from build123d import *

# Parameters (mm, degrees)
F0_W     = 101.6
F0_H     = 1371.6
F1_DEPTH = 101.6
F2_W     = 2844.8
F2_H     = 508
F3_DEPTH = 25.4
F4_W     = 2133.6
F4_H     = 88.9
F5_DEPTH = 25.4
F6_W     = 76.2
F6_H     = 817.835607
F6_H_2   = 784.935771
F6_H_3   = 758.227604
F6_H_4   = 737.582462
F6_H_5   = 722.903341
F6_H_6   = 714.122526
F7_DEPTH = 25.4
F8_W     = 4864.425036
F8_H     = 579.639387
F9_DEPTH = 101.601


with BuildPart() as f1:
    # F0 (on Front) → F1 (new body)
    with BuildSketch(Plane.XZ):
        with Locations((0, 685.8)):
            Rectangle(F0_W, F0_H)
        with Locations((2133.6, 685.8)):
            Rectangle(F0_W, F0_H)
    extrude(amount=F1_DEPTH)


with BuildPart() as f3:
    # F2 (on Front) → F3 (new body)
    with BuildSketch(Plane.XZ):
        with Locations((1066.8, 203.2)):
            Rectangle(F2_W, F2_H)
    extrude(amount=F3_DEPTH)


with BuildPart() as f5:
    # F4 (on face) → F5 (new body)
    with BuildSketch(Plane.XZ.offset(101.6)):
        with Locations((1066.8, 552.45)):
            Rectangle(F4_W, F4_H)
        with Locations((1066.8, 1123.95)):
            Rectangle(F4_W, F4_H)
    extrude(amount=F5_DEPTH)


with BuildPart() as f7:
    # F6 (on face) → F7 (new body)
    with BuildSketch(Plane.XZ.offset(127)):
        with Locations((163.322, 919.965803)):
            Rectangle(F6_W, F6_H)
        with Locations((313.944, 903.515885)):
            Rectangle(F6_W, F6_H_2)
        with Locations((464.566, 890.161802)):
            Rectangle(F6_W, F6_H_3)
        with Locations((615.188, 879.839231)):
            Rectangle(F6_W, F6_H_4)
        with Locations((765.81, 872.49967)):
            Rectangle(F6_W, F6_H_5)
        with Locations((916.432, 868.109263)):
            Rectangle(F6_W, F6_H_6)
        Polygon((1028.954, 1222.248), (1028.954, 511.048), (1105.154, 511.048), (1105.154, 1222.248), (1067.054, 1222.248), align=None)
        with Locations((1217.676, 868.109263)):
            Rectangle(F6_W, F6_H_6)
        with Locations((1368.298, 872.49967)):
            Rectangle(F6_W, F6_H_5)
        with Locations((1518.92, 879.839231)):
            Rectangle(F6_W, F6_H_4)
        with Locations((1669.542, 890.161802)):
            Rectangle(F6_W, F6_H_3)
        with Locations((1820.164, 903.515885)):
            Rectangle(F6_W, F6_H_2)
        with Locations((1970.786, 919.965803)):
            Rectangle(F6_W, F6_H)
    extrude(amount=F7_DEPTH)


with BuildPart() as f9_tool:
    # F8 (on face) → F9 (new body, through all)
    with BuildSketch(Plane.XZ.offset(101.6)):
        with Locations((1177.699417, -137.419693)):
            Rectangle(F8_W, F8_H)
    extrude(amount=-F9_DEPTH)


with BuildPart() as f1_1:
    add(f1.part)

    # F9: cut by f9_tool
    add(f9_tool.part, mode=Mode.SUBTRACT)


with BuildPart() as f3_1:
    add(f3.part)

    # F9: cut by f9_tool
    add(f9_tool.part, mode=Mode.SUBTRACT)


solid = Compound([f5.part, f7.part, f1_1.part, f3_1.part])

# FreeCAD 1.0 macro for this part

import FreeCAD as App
import Part
import Sketcher

V = App.Vector
Q = App.Units.Quantity

doc = App.newDocument("Part")
body = doc.addObject("PartDesign::Body", "Body")
body.AllowCompound = True

# Sketch on XZ plane
sketch1 = body.newObject("Sketcher::SketchObject", "Sketch")
sketch1.AttachmentSupport = (doc.getObject("XZ_Plane"), [""])
sketch1.MapMode = "FlatFace"
sketch1.addGeometry([
    Part.LineSegment(V(-51, 1372, 0), V(-51, 0, 0)),  # 0
    Part.LineSegment(V(-51, 0, 0), V(51, 0, 0)),  # 1
    Part.LineSegment(V(51, 0, 0), V(51, 1372, 0)),  # 2
    Part.LineSegment(V(51, 1372, 0), V(-51, 1372, 0)),  # 3
    Part.LineSegment(V(2083, 1372, 0), V(2083, 0, 0)),  # 4
    Part.LineSegment(V(2083, 0, 0), V(2184, 0, 0)),  # 5
    Part.LineSegment(V(2184, 0, 0), V(2184, 1372, 0)),  # 6
    Part.LineSegment(V(2184, 1372, 0), V(2083, 1372, 0)),  # 7
], False)
sketch1.addConstraint([
    Sketcher.Constraint("Coincident", 0, 2, 1, 1),
    Sketcher.Constraint("Coincident", 1, 2, 2, 1),
    Sketcher.Constraint("Coincident", 2, 2, 3, 1),
    Sketcher.Constraint("Coincident", 3, 2, 0, 1),
    Sketcher.Constraint("Coincident", 4, 2, 5, 1),
    Sketcher.Constraint("Coincident", 5, 2, 6, 1),
    Sketcher.Constraint("Coincident", 6, 2, 7, 1),
    Sketcher.Constraint("Coincident", 7, 2, 4, 1),
    Sketcher.Constraint("Vertical", 0),
    Sketcher.Constraint("Horizontal", 1),
    Sketcher.Constraint("Vertical", 2),
    Sketcher.Constraint("Horizontal", 3),
    Sketcher.Constraint("Vertical", 4),
    Sketcher.Constraint("Horizontal", 5),
    Sketcher.Constraint("Vertical", 6),
    Sketcher.Constraint("Horizontal", 7),
    Sketcher.Constraint("Symmetric", 0, 2, 1, 2, -1, 1),
    Sketcher.Constraint("PointOnObject", 4, 2, -1),
    Sketcher.Constraint("Horizontal", 3, 2, 6, 2),
    Sketcher.Constraint("Equal", 3, 5),
    Sketcher.Constraint("DistanceX", 1, 1, 1, 2, Q("4 in")),
    Sketcher.Constraint("DistanceY", 0, 2, 0, 1, Q("54 in")),
    Sketcher.Constraint("DistanceX", -1, 1, 4, 2, Q("82 in")),
])
pad1 = body.newObject("PartDesign::Pad", "Pad")
pad1.Profile = sketch1
pad1.Length = Q("4 in")
body2 = doc.addObject("PartDesign::Body", "Body001")

# Sketch on XZ plane
sketch2 = body2.newObject("Sketcher::SketchObject", "Sketch001")
sketch2.AttachmentSupport = (doc.getObject("XZ_Plane001"), [""])
sketch2.MapMode = "FlatFace"
sketch2.addGeometry([
    Part.LineSegment(V(-356, 457, 0), V(-356, -51, 0)),
    Part.LineSegment(V(-356, -51, 0), V(2489, -51, 0)),
    Part.LineSegment(V(2489, -51, 0), V(2489, 457, 0)),
    Part.LineSegment(V(2489, 457, 0), V(-356, 457, 0)),
], False)
sketch2.addConstraint([
    Sketcher.Constraint("Coincident", 0, 2, 1, 1),
    Sketcher.Constraint("Coincident", 1, 2, 2, 1),
    Sketcher.Constraint("Coincident", 2, 2, 3, 1),
    Sketcher.Constraint("Coincident", 3, 2, 0, 1),
    Sketcher.Constraint("Vertical", 0),
    Sketcher.Constraint("Horizontal", 1),
    Sketcher.Constraint("Vertical", 2),
    Sketcher.Constraint("Horizontal", 3),
    Sketcher.Constraint("DistanceX", 1, 1, 1, 2, Q("112 in")),
    Sketcher.Constraint("DistanceY", 0, 2, 0, 1, Q("20 in")),
    Sketcher.Constraint("DistanceX", 0, 2, -1, 1, Q("14 in")),
    Sketcher.Constraint("DistanceY", 0, 2, -1, 1, Q("2 in")),
])
pad2 = body2.newObject("PartDesign::Pad", "Pad001")
pad2.Profile = sketch2
pad2.Length = Q("1 in")
body3 = doc.addObject("PartDesign::Body", "Body002")
body3.AllowCompound = True

# Sketch on XZ plane
sketch3 = body3.newObject("Sketcher::SketchObject", "Sketch002")
sketch3.AttachmentSupport = (doc.getObject("XZ_Plane002"), [""])
sketch3.MapMode = "FlatFace"
sketch3.AttachmentOffset = App.Placement(V(0, 0, 4 * 25.4), App.Rotation())
sketch3.addGeometry([
    Part.LineSegment(V(0, 597, 0), V(0, 508, 0)),  # 0
    Part.LineSegment(V(0, 508, 0), V(2134, 508, 0)),  # 1
    Part.LineSegment(V(2134, 508, 0), V(2134, 597, 0)),  # 2
    Part.LineSegment(V(2134, 597, 0), V(0, 597, 0)),  # 3
    Part.LineSegment(V(0, 1168, 0), V(0, 1080, 0)),  # 4
    Part.LineSegment(V(0, 1080, 0), V(2134, 1080, 0)),  # 5
    Part.LineSegment(V(2134, 1080, 0), V(2134, 1168, 0)),  # 6
    Part.LineSegment(V(2134, 1168, 0), V(0, 1168, 0)),  # 7
], False)
sketch3.addConstraint([
    Sketcher.Constraint("Coincident", 0, 2, 1, 1),
    Sketcher.Constraint("Coincident", 1, 2, 2, 1),
    Sketcher.Constraint("Coincident", 2, 2, 3, 1),
    Sketcher.Constraint("Coincident", 3, 2, 0, 1),
    Sketcher.Constraint("Coincident", 4, 2, 5, 1),
    Sketcher.Constraint("Coincident", 5, 2, 6, 1),
    Sketcher.Constraint("Coincident", 6, 2, 7, 1),
    Sketcher.Constraint("Coincident", 7, 2, 4, 1),
    Sketcher.Constraint("Vertical", 0),
    Sketcher.Constraint("Horizontal", 1),
    Sketcher.Constraint("Vertical", 2),
    Sketcher.Constraint("Horizontal", 3),
    Sketcher.Constraint("Vertical", 4),
    Sketcher.Constraint("Horizontal", 5),
    Sketcher.Constraint("Vertical", 6),
    Sketcher.Constraint("Horizontal", 7),
    Sketcher.Constraint("PointOnObject", 0, 2, -2),
    Sketcher.Constraint("PointOnObject", 4, 2, -2),
    Sketcher.Constraint("Vertical", 2, 2, 5, 2),
    Sketcher.Constraint("Equal", 2, 4),
    Sketcher.Constraint("DistanceX", 1, 1, 1, 2, Q("84 in")),
    Sketcher.Constraint("DistanceY", 0, 2, 0, 1, Q("3.5 in")),
    Sketcher.Constraint("DistanceY", -1, 1, 0, 2, Q("20 in")),
    Sketcher.Constraint("DistanceY", -1, 1, 6, 2, Q("46 in")),
])
pad3 = body3.newObject("PartDesign::Pad", "Pad002")
pad3.Profile = sketch3
pad3.Length = Q("1 in")
body4 = doc.addObject("PartDesign::Body", "Body003")
body4.AllowCompound = True

# Sketch on XZ plane
sketch4 = body4.newObject("Sketcher::SketchObject", "Sketch003")
sketch4.AttachmentSupport = (doc.getObject("XZ_Plane003"), [""])
sketch4.MapMode = "FlatFace"
sketch4.AttachmentOffset = App.Placement(V(0, 0, 5 * 25.4), App.Rotation())
sketch4.addGeometry([
    Part.LineSegment(V(125, 1329, 0), V(125, 511, 0)),  # 0
    Part.LineSegment(V(125, 511, 0), V(201, 511, 0)),  # 1
    Part.LineSegment(V(201, 511, 0), V(201, 1329, 0)),  # 2
    Part.LineSegment(V(201, 1329, 0), V(125, 1329, 0)),  # 3
    Part.LineSegment(V(276, 1296, 0), V(276, 511, 0)),  # 4
    Part.LineSegment(V(276, 511, 0), V(352, 511, 0)),  # 5
    Part.LineSegment(V(352, 511, 0), V(352, 1296, 0)),  # 6
    Part.LineSegment(V(352, 1296, 0), V(276, 1296, 0)),  # 7
    Part.LineSegment(V(426, 1269, 0), V(426, 511, 0)),  # 8
    Part.LineSegment(V(426, 511, 0), V(503, 511, 0)),  # 9
    Part.LineSegment(V(503, 511, 0), V(503, 1269, 0)),  # 10
    Part.LineSegment(V(503, 1269, 0), V(426, 1269, 0)),  # 11
    Part.LineSegment(V(577, 1249, 0), V(577, 511, 0)),  # 12
    Part.LineSegment(V(577, 511, 0), V(653, 511, 0)),  # 13
    Part.LineSegment(V(653, 511, 0), V(653, 1249, 0)),  # 14
    Part.LineSegment(V(653, 1249, 0), V(577, 1249, 0)),  # 15
    Part.LineSegment(V(728, 1234, 0), V(728, 511, 0)),  # 16
    Part.LineSegment(V(728, 511, 0), V(804, 511, 0)),  # 17
    Part.LineSegment(V(804, 511, 0), V(804, 1234, 0)),  # 18
    Part.LineSegment(V(804, 1234, 0), V(728, 1234, 0)),  # 19
    Part.LineSegment(V(878, 1225, 0), V(878, 511, 0)),  # 20
    Part.LineSegment(V(878, 511, 0), V(955, 511, 0)),  # 21
    Part.LineSegment(V(955, 511, 0), V(955, 1225, 0)),  # 22
    Part.LineSegment(V(955, 1225, 0), V(878, 1225, 0)),  # 23
    Part.LineSegment(V(1029, 1222, 0), V(1029, 511, 0)),  # 24
    Part.LineSegment(V(1029, 511, 0), V(1105, 511, 0)),  # 25
    Part.LineSegment(V(1105, 511, 0), V(1105, 1222, 0)),  # 26
    Part.LineSegment(V(1105, 1222, 0), V(1029, 1222, 0)),  # 27
    Part.LineSegment(V(1180, 1225, 0), V(1180, 511, 0)),  # 28
    Part.LineSegment(V(1180, 511, 0), V(1256, 511, 0)),  # 29
    Part.LineSegment(V(1256, 511, 0), V(1256, 1225, 0)),  # 30
    Part.LineSegment(V(1256, 1225, 0), V(1180, 1225, 0)),  # 31
    Part.LineSegment(V(1330, 1234, 0), V(1330, 511, 0)),  # 32
    Part.LineSegment(V(1330, 511, 0), V(1406, 511, 0)),  # 33
    Part.LineSegment(V(1406, 511, 0), V(1406, 1234, 0)),  # 34
    Part.LineSegment(V(1406, 1234, 0), V(1330, 1234, 0)),  # 35
    Part.LineSegment(V(1481, 1249, 0), V(1481, 511, 0)),  # 36
    Part.LineSegment(V(1481, 511, 0), V(1557, 511, 0)),  # 37
    Part.LineSegment(V(1557, 511, 0), V(1557, 1249, 0)),  # 38
    Part.LineSegment(V(1557, 1249, 0), V(1481, 1249, 0)),  # 39
    Part.LineSegment(V(1631, 1269, 0), V(1631, 511, 0)),  # 40
    Part.LineSegment(V(1631, 511, 0), V(1708, 511, 0)),  # 41
    Part.LineSegment(V(1708, 511, 0), V(1708, 1269, 0)),  # 42
    Part.LineSegment(V(1708, 1269, 0), V(1631, 1269, 0)),  # 43
    Part.LineSegment(V(1782, 1296, 0), V(1782, 511, 0)),  # 44
    Part.LineSegment(V(1782, 511, 0), V(1858, 511, 0)),  # 45
    Part.LineSegment(V(1858, 511, 0), V(1858, 1296, 0)),  # 46
    Part.LineSegment(V(1858, 1296, 0), V(1782, 1296, 0)),  # 47
    Part.LineSegment(V(1933, 1329, 0), V(1933, 511, 0)),  # 48
    Part.LineSegment(V(1933, 511, 0), V(2009, 511, 0)),  # 49
    Part.LineSegment(V(2009, 511, 0), V(2009, 1329, 0)),  # 50
    Part.LineSegment(V(2009, 1329, 0), V(1933, 1329, 0)),  # 51
], False)
sketch4.addConstraint([
    Sketcher.Constraint("Coincident", 0, 2, 1, 1),
    Sketcher.Constraint("Coincident", 1, 2, 2, 1),
    Sketcher.Constraint("Coincident", 2, 2, 3, 1),
    Sketcher.Constraint("Coincident", 3, 2, 0, 1),
    Sketcher.Constraint("Coincident", 4, 2, 5, 1),
    Sketcher.Constraint("Coincident", 5, 2, 6, 1),
    Sketcher.Constraint("Coincident", 6, 2, 7, 1),
    Sketcher.Constraint("Coincident", 7, 2, 4, 1),
    Sketcher.Constraint("Coincident", 8, 2, 9, 1),
    Sketcher.Constraint("Coincident", 9, 2, 10, 1),
    Sketcher.Constraint("Coincident", 10, 2, 11, 1),
    Sketcher.Constraint("Coincident", 11, 2, 8, 1),
    Sketcher.Constraint("Coincident", 12, 2, 13, 1),
    Sketcher.Constraint("Coincident", 13, 2, 14, 1),
    Sketcher.Constraint("Coincident", 14, 2, 15, 1),
    Sketcher.Constraint("Coincident", 15, 2, 12, 1),
    Sketcher.Constraint("Coincident", 16, 2, 17, 1),
    Sketcher.Constraint("Coincident", 17, 2, 18, 1),
    Sketcher.Constraint("Coincident", 18, 2, 19, 1),
    Sketcher.Constraint("Coincident", 19, 2, 16, 1),
    Sketcher.Constraint("Coincident", 20, 2, 21, 1),
    Sketcher.Constraint("Coincident", 21, 2, 22, 1),
    Sketcher.Constraint("Coincident", 22, 2, 23, 1),
    Sketcher.Constraint("Coincident", 23, 2, 20, 1),
    Sketcher.Constraint("Coincident", 24, 2, 25, 1),
    Sketcher.Constraint("Coincident", 25, 2, 26, 1),
    Sketcher.Constraint("Coincident", 26, 2, 27, 1),
    Sketcher.Constraint("Coincident", 27, 2, 24, 1),
    Sketcher.Constraint("Coincident", 28, 2, 29, 1),
    Sketcher.Constraint("Coincident", 29, 2, 30, 1),
    Sketcher.Constraint("Coincident", 30, 2, 31, 1),
    Sketcher.Constraint("Coincident", 31, 2, 28, 1),
    Sketcher.Constraint("Coincident", 32, 2, 33, 1),
    Sketcher.Constraint("Coincident", 33, 2, 34, 1),
    Sketcher.Constraint("Coincident", 34, 2, 35, 1),
    Sketcher.Constraint("Coincident", 35, 2, 32, 1),
    Sketcher.Constraint("Coincident", 36, 2, 37, 1),
    Sketcher.Constraint("Coincident", 37, 2, 38, 1),
    Sketcher.Constraint("Coincident", 38, 2, 39, 1),
    Sketcher.Constraint("Coincident", 39, 2, 36, 1),
    Sketcher.Constraint("Coincident", 40, 2, 41, 1),
    Sketcher.Constraint("Coincident", 41, 2, 42, 1),
    Sketcher.Constraint("Coincident", 42, 2, 43, 1),
    Sketcher.Constraint("Coincident", 43, 2, 40, 1),
    Sketcher.Constraint("Coincident", 44, 2, 45, 1),
    Sketcher.Constraint("Coincident", 45, 2, 46, 1),
    Sketcher.Constraint("Coincident", 46, 2, 47, 1),
    Sketcher.Constraint("Coincident", 47, 2, 44, 1),
    Sketcher.Constraint("Coincident", 48, 2, 49, 1),
    Sketcher.Constraint("Coincident", 49, 2, 50, 1),
    Sketcher.Constraint("Coincident", 50, 2, 51, 1),
    Sketcher.Constraint("Coincident", 51, 2, 48, 1),
    Sketcher.Constraint("Vertical", 0),
    Sketcher.Constraint("Horizontal", 1),
    Sketcher.Constraint("Vertical", 2),
    Sketcher.Constraint("Horizontal", 3),
    Sketcher.Constraint("Vertical", 4),
    Sketcher.Constraint("Horizontal", 5),
    Sketcher.Constraint("Vertical", 6),
    Sketcher.Constraint("Horizontal", 7),
    Sketcher.Constraint("Vertical", 8),
    Sketcher.Constraint("Horizontal", 9),
    Sketcher.Constraint("Vertical", 10),
    Sketcher.Constraint("Horizontal", 11),
    Sketcher.Constraint("Vertical", 12),
    Sketcher.Constraint("Horizontal", 13),
    Sketcher.Constraint("Vertical", 14),
    Sketcher.Constraint("Horizontal", 15),
    Sketcher.Constraint("Vertical", 16),
    Sketcher.Constraint("Horizontal", 17),
    Sketcher.Constraint("Vertical", 18),
    Sketcher.Constraint("Horizontal", 19),
    Sketcher.Constraint("Vertical", 20),
    Sketcher.Constraint("Horizontal", 21),
    Sketcher.Constraint("Vertical", 22),
    Sketcher.Constraint("Horizontal", 23),
    Sketcher.Constraint("Vertical", 24),
    Sketcher.Constraint("Horizontal", 25),
    Sketcher.Constraint("Vertical", 26),
    Sketcher.Constraint("Horizontal", 27),
    Sketcher.Constraint("Vertical", 28),
    Sketcher.Constraint("Horizontal", 29),
    Sketcher.Constraint("Vertical", 30),
    Sketcher.Constraint("Horizontal", 31),
    Sketcher.Constraint("Vertical", 32),
    Sketcher.Constraint("Horizontal", 33),
    Sketcher.Constraint("Vertical", 34),
    Sketcher.Constraint("Horizontal", 35),
    Sketcher.Constraint("Vertical", 36),
    Sketcher.Constraint("Horizontal", 37),
    Sketcher.Constraint("Vertical", 38),
    Sketcher.Constraint("Horizontal", 39),
    Sketcher.Constraint("Vertical", 40),
    Sketcher.Constraint("Horizontal", 41),
    Sketcher.Constraint("Vertical", 42),
    Sketcher.Constraint("Horizontal", 43),
    Sketcher.Constraint("Vertical", 44),
    Sketcher.Constraint("Horizontal", 45),
    Sketcher.Constraint("Vertical", 46),
    Sketcher.Constraint("Horizontal", 47),
    Sketcher.Constraint("Vertical", 48),
    Sketcher.Constraint("Horizontal", 49),
    Sketcher.Constraint("Vertical", 50),
    Sketcher.Constraint("Horizontal", 51),
    Sketcher.Constraint("Horizontal", 1, 2, 4, 2),
    Sketcher.Constraint("Horizontal", 5, 2, 8, 2),
    Sketcher.Constraint("Horizontal", 9, 2, 12, 2),
    Sketcher.Constraint("Horizontal", 13, 2, 16, 2),
    Sketcher.Constraint("Horizontal", 17, 2, 20, 2),
    Sketcher.Constraint("Horizontal", 21, 2, 24, 2),
    Sketcher.Constraint("Horizontal", 25, 2, 28, 2),
    Sketcher.Constraint("Horizontal", 23, 2, 30, 2),
    Sketcher.Constraint("Horizontal", 29, 2, 32, 2),
    Sketcher.Constraint("Horizontal", 19, 2, 34, 2),
    Sketcher.Constraint("Horizontal", 33, 2, 36, 2),
    Sketcher.Constraint("Horizontal", 15, 2, 38, 2),
    Sketcher.Constraint("Horizontal", 37, 2, 40, 2),
    Sketcher.Constraint("Horizontal", 11, 2, 42, 2),
    Sketcher.Constraint("Horizontal", 41, 2, 44, 2),
    Sketcher.Constraint("Horizontal", 7, 2, 46, 2),
    Sketcher.Constraint("Horizontal", 45, 2, 48, 2),
    Sketcher.Constraint("Horizontal", 3, 2, 50, 2),
    Sketcher.Constraint("Equal", 3, 5),
    Sketcher.Constraint("Equal", 7, 9),
    Sketcher.Constraint("Equal", 11, 13),
    Sketcher.Constraint("Equal", 15, 17),
    Sketcher.Constraint("Equal", 19, 21),
    Sketcher.Constraint("Equal", 23, 25),
    Sketcher.Constraint("Equal", 27, 29),
    Sketcher.Constraint("Equal", 31, 33),
    Sketcher.Constraint("Equal", 35, 37),
    Sketcher.Constraint("Equal", 39, 41),
    Sketcher.Constraint("Equal", 43, 45),
    Sketcher.Constraint("Equal", 47, 49),
    Sketcher.Constraint("DistanceX", 1, 1, 1, 2, Q("3 in")),
    Sketcher.Constraint("DistanceY", 24, 2, 24, 1, Q("28 in")),
    Sketcher.Constraint("DistanceX", -1, 1, 36, 2, Q("58.3 in")),
    Sketcher.Constraint("DistanceX", -1, 1, 0, 2, Q("4.93 in")),
    Sketcher.Constraint("DistanceY", -1, 1, 0, 2, Q("20.12 in")),
    Sketcher.Constraint("DistanceX", -1, 1, 4, 2, Q("10.86 in")),
    Sketcher.Constraint("DistanceX", -1, 1, 8, 2, Q("16.79 in")),
    Sketcher.Constraint("DistanceX", -1, 1, 12, 2, Q("22.72 in")),
    Sketcher.Constraint("DistanceX", -1, 1, 16, 2, Q("28.65 in")),
    Sketcher.Constraint("DistanceX", -1, 1, 20, 2, Q("34.58 in")),
    Sketcher.Constraint("DistanceX", -1, 1, 24, 2, Q("40.51 in")),
    Sketcher.Constraint("DistanceX", -1, 1, 28, 2, Q("46.44 in")),
    Sketcher.Constraint("DistanceX", -1, 1, 32, 2, Q("52.37 in")),
    Sketcher.Constraint("DistanceX", -1, 1, 40, 2, Q("64.23 in")),
    Sketcher.Constraint("DistanceX", -1, 1, 44, 2, Q("70.16 in")),
    Sketcher.Constraint("DistanceX", -1, 1, 48, 2, Q("76.09 in")),
    Sketcher.Constraint("DistanceY", 4, 2, 4, 1, Q("784.935771 mm")),
    Sketcher.Constraint("DistanceY", 16, 2, 16, 1, Q("722.903341 mm")),
    Sketcher.Constraint("DistanceY", 0, 2, 0, 1, Q("817.835607 mm")),
    Sketcher.Constraint("DistanceY", 8, 2, 8, 1, Q("758.227604 mm")),
    Sketcher.Constraint("DistanceY", 12, 2, 12, 1, Q("737.582462 mm")),
    Sketcher.Constraint("DistanceY", 20, 2, 20, 1, Q("714.122526 mm")),
])
pad4 = body4.newObject("PartDesign::Pad", "Pad003")
pad4.Profile = sketch4
pad4.Length = Q("1 in")
body5 = doc.addObject("PartDesign::Body", "Body004")

# Sketch on XZ plane
sketch5 = body5.newObject("Sketcher::SketchObject", "Sketch004")
sketch5.AttachmentSupport = (doc.getObject("XZ_Plane004"), [""])
sketch5.MapMode = "FlatFace"
sketch5.AttachmentOffset = App.Placement(V(0, 0, 4 * 25.4), App.Rotation())
sketch5.addGeometry([
    Part.LineSegment(V(-1255, 152, 0), V(-1255, -427, 0)),
    Part.LineSegment(V(-1255, -427, 0), V(3610, -427, 0)),
    Part.LineSegment(V(3610, -427, 0), V(3610, 152, 0)),
    Part.LineSegment(V(3610, 152, 0), V(-1255, 152, 0)),
], False)
sketch5.addConstraint([
    Sketcher.Constraint("Coincident", 0, 2, 1, 1),
    Sketcher.Constraint("Coincident", 1, 2, 2, 1),
    Sketcher.Constraint("Coincident", 2, 2, 3, 1),
    Sketcher.Constraint("Coincident", 3, 2, 0, 1),
    Sketcher.Constraint("Vertical", 0),
    Sketcher.Constraint("Horizontal", 1),
    Sketcher.Constraint("Vertical", 2),
    Sketcher.Constraint("Horizontal", 3),
    Sketcher.Constraint("DistanceY", -1, 1, 2, 2, Q("6 in")),
    Sketcher.Constraint("DistanceX", 0, 2, -1, 1, Q("1254.513101 mm")),
    Sketcher.Constraint("DistanceX", 1, 1, 1, 2, Q("4864.425036 mm")),
    Sketcher.Constraint("DistanceY", 0, 2, 0, 1, Q("579.639387 mm")),
])
pad5 = body5.newObject("PartDesign::Pad", "Pad004")
pad5.Profile = sketch5
pad5.Length = 101.601
pad5.Reversed = True
body.AllowCompound = True
doc.recompute()

body6 = doc.addObject("PartDesign::Body", "Body005")
body6.BaseFeature = body5
boolean = body.newObject("PartDesign::Boolean", "Boolean")
boolean.Type = "Cut"
boolean.addObjects([body6])
doc.recompute()

boolean2 = body2.newObject("PartDesign::Boolean", "Boolean001")
boolean2.Type = "Cut"
boolean2.addObjects([body5])

doc.recompute()
